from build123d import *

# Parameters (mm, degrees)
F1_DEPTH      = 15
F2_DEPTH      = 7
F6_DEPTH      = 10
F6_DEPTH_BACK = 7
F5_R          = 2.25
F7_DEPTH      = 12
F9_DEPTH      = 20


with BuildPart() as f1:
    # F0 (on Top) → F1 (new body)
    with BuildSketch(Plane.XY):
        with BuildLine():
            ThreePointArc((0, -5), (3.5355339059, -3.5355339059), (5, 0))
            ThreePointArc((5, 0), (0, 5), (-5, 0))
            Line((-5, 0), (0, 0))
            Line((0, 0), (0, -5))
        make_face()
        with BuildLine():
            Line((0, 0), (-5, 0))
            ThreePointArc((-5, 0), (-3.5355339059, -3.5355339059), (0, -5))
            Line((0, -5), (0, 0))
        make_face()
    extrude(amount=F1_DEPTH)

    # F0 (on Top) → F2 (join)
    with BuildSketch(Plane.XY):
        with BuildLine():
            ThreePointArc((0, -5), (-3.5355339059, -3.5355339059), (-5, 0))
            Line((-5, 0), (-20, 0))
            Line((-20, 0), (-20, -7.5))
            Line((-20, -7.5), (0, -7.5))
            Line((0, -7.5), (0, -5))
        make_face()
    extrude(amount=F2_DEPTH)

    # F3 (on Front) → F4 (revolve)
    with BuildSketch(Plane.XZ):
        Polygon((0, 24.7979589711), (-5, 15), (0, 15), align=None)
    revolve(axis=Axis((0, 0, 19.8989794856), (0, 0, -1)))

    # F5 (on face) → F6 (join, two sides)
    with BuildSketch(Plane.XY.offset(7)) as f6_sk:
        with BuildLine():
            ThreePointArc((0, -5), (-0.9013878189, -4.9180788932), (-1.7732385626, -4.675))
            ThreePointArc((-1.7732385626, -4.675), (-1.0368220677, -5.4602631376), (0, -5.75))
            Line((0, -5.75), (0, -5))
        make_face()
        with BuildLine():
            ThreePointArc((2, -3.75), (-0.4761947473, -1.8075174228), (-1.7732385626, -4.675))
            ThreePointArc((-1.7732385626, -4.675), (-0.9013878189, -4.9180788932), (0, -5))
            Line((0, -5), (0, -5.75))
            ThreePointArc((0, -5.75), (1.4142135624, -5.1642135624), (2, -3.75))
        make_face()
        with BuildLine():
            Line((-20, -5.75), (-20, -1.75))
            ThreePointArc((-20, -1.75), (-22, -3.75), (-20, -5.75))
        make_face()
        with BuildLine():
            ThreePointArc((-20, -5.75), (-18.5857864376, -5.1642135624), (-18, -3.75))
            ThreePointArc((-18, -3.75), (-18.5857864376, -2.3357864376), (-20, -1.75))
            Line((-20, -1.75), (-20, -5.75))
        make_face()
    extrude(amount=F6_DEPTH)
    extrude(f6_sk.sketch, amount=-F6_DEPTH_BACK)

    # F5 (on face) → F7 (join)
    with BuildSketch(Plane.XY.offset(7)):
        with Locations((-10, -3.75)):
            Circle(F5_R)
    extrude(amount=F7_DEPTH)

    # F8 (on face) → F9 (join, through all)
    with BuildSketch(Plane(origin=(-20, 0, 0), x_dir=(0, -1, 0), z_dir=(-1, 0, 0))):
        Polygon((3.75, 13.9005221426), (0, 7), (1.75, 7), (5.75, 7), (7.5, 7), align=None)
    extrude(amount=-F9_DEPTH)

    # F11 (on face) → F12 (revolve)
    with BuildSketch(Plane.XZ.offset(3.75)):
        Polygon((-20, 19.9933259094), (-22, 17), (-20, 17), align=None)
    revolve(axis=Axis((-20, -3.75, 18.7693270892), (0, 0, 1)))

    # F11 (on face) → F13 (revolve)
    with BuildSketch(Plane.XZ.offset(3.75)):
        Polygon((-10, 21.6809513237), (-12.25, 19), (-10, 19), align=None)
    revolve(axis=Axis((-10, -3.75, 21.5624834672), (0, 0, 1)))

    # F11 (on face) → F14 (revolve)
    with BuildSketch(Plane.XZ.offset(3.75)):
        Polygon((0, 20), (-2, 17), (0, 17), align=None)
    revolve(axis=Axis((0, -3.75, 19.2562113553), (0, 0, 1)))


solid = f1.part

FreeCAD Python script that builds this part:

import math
import FreeCAD as App
import Part
import Sketcher

V = App.Vector


def add_polygon(sketch, points):
    """Adds a closed chain of lines whose ends are joined by coincident constraints."""
    first, n = sketch.GeometryCount, len(points)
    for a, b in zip(points, points[1:] + points[:1]):
        sketch.addGeometry(Part.LineSegment(App.Vector(*a, 0), App.Vector(*b, 0)), False)
    for i in range(n):
        sketch.addConstraint(Sketcher.Constraint("Coincident", first + i, 2, first + (i + 1) % n, 1))

doc = App.newDocument("Part")
body = doc.addObject("PartDesign::Body", "Body")

sketch1 = body.newObject("Sketcher::SketchObject", "Sketch")
sketch1.AttachmentSupport = (doc.getObject("XY_Plane"), [""])
sketch1.MapMode = "FlatFace"
sketch1.addGeometry(Part.ArcOfCircle(Part.Circle(V(0, 0, 0), V(0, 0, 1), 5), math.radians(-90), math.radians(0)), False)
sketch1.addGeometry(Part.ArcOfCircle(Part.Circle(V(0, 0, 0), V(0, 0, 1), 5), math.radians(0), math.radians(180)), False)
sketch1.addGeometry(Part.ArcOfCircle(Part.Circle(V(0, 0, 0), V(0, 0, 1), 5), math.radians(180), math.radians(270)), False)
sketch1.addConstraint(Sketcher.Constraint("Tangent", 0, 2, 1, 1))
sketch1.addConstraint(Sketcher.Constraint("Tangent", 1, 2, 2, 1))
sketch1.addConstraint(Sketcher.Constraint("Tangent", 2, 2, 0, 1))
sketch1.addConstraint(Sketcher.Constraint("Coincident", 0, 3, -1, 1))
sketch1.addConstraint(Sketcher.Constraint("PointOnObject", 0, 2, -1))
sketch1.addConstraint(Sketcher.Constraint("PointOnObject", 1, 2, -1))
sketch1.addConstraint(Sketcher.Constraint("PointOnObject", 2, 2, -2))
sketch1.addConstraint(Sketcher.Constraint("Radius", 0, 5.0))
pad1 = body.newObject("PartDesign::Pad", "Pad")
pad1.Profile = sketch1
pad1.Length = 15

sketch2 = body.newObject("Sketcher::SketchObject", "Sketch001")
sketch2.AttachmentSupport = (doc.getObject("XY_Plane"), [""])
sketch2.MapMode = "FlatFace"
sketch2.addGeometry(Part.ArcOfCircle(Part.Circle(V(0, 0, 0), V(0, 0, 1), 5), math.radians(180), math.radians(270)), False)
sketch2.addGeometry(Part.LineSegment(V(-5, 0, 0), V(-20, 0, 0)), False)
sketch2.addGeometry(Part.LineSegment(V(-20, 0, 0), V(-20, -7.5, 0)), False)
sketch2.addGeometry(Part.LineSegment(V(-20, -7.5, 0), V(0, -7.5, 0)), False)
sketch2.addGeometry(Part.LineSegment(V(0, -7.5, 0), V(0, -5, 0)), False)
sketch2.addConstraint(Sketcher.Constraint("Coincident", 0, 1, 1, 1))
sketch2.addConstraint(Sketcher.Constraint("Coincident", 1, 2, 2, 1))
sketch2.addConstraint(Sketcher.Constraint("Coincident", 2, 2, 3, 1))
sketch2.addConstraint(Sketcher.Constraint("Coincident", 3, 2, 4, 1))
sketch2.addConstraint(Sketcher.Constraint("Coincident", 4, 2, 0, 2))
sketch2.addConstraint(Sketcher.Constraint("Horizontal", 1))
sketch2.addConstraint(Sketcher.Constraint("Vertical", 2))
sketch2.addConstraint(Sketcher.Constraint("Horizontal", 3))
sketch2.addConstraint(Sketcher.Constraint("Vertical", 4))
sketch2.addConstraint(Sketcher.Constraint("Coincident", 0, 3, -1, 1))
sketch2.addConstraint(Sketcher.Constraint("PointOnObject", 0, 1, -1))
sketch2.addConstraint(Sketcher.Constraint("PointOnObject", 3, 2, -2))
sketch2.addConstraint(Sketcher.Constraint("Radius", 0, 5.0))
sketch2.addConstraint(Sketcher.Constraint("DistanceX", 1, 2, 1, 1, 15.0))
sketch2.addConstraint(Sketcher.Constraint("DistanceY", 2, 2, 2, 1, 7.5))
pad2 = body.newObject("PartDesign::Pad", "Pad001")
pad2.Profile = sketch2
pad2.Length = 7

sketch3 = body.newObject("Sketcher::SketchObject", "Sketch002")
sketch3.AttachmentSupport = (doc.getObject("XZ_Plane"), [""])
sketch3.MapMode = "FlatFace"
add_polygon(sketch3, [(0, 25), (-5, 15), (0, 15)])
sketch3.addConstraint(Sketcher.Constraint("Horizontal", 1))
sketch3.addConstraint(Sketcher.Constraint("Vertical", 2))
sketch3.addConstraint(Sketcher.Constraint("PointOnObject", 1, 2, -2))
sketch3.addConstraint(Sketcher.Constraint("DistanceX", 1, 1, 1, 2, 5.0))
sketch3.addConstraint(Sketcher.Constraint("Distance", 0, 11.0))
sketch3.addConstraint(Sketcher.Constraint("DistanceY", -1, 1, 0, 2, 15.0))
revolution = body.newObject("PartDesign::Revolution", "Revolution")
revolution.Profile = sketch3
revolution.ReferenceAxis = (sketch3, ["V_Axis"])
revolution.Angle = 360

sketch4 = body.newObject("Sketcher::SketchObject", "Sketch003")
sketch4.AttachmentSupport = (doc.getObject("XY_Plane"), [""])
sketch4.MapMode = "FlatFace"
sketch4.AttachmentOffset = App.Placement(V(0, 0, 7), App.Rotation())
sketch4.addGeometry(Part.ArcOfCircle(Part.Circle(V(0, -3.8, 0), V(0, 0, 1), 2), math.radians(-152), math.radians(-90)), False)
sketch4.addGeometry(Part.ArcOfCircle(Part.Circle(V(0, -3.8, 0), V(0, 0, 1), 2), math.radians(-90), math.radians(0)), False)
sketch4.addGeometry(Part.ArcOfCircle(Part.Circle(V(0, -3.8, 0), V(0, 0, 1), 2), math.radians(0), math.radians(208)), False)
sketch4.addGeometry(Part.ArcOfCircle(Part.Circle(V(-20, -3.8, 0), V(0, 0, 1), 2), math.radians(90), math.radians(270)), False)
sketch4.addGeometry(Part.ArcOfCircle(Part.Circle(V(-20, -3.8, 0), V(0, 0, 1), 2), math.radians(-90), math.radians(0)), False)
sketch4.addGeometry(Part.ArcOfCircle(Part.Circle(V(-20, -3.8, 0), V(0, 0, 1), 2), math.radians(0), math.radians(90)), False)
sketch4.addConstraint(Sketcher.Constraint("Tangent", 0, 2, 1, 1))
sketch4.addConstraint(Sketcher.Constraint("Tangent", 1, 2, 2, 1))
sketch4.addConstraint(Sketcher.Constraint("Tangent", 2, 2, 0, 1))
sketch4.addConstraint(Sketcher.Constraint("Tangent", 3, 2, 4, 1))
sketch4.addConstraint(Sketcher.Constraint("Tangent", 4, 2, 5, 1))
sketch4.addConstraint(Sketcher.Constraint("Tangent", 5, 2, 3, 1))
sketch4.addConstraint(Sketcher.Constraint("Equal", 2, 3))
sketch4.addConstraint(Sketcher.Constraint("PointOnObject", 0, 3, -2))
sketch4.addConstraint(Sketcher.Constraint("PointOnObject", 0, 2, -2))
sketch4.addConstraint(Sketcher.Constraint("Horizontal", 2, 3, 3, 3))
sketch4.addConstraint(Sketcher.Constraint("Horizontal", 5, 3, 1, 2))
sketch4.addConstraint(Sketcher.Constraint("Horizontal", 1, 2, 4, 2))
sketch4.addConstraint(Sketcher.Constraint("Vertical", 5, 3, 3, 2))
sketch4.addConstraint(Sketcher.Constraint("Vertical", 3, 2, 5, 2))
sketch4.addConstraint(Sketcher.Constraint("Radius", 0, 2.0))
sketch4.addConstraint(Sketcher.Constraint("DistanceX", 3, 3, -1, 1, 20.0))
sketch4.addConstraint(Sketcher.Constraint("DistanceY", 0, 3, -1, 1, 3.75))
sketch4.addConstraint(Sketcher.Constraint("DistanceY", 2, 2, -1, 1, 4.675))
pad3 = body.newObject("PartDesign::Pad", "Pad002")
pad3.Profile = sketch4
pad3.Type = "TwoLengths"
pad3.Length = 10
pad3.Length2 = 7

sketch5 = body.newObject("Sketcher::SketchObject", "Sketch004")
sketch5.AttachmentSupport = (doc.getObject("XY_Plane"), [""])
sketch5.MapMode = "FlatFace"
sketch5.AttachmentOffset = App.Placement(V(0, 0, 7), App.Rotation())
sketch5.addGeometry(Part.Circle(V(-10, -3.8, 0), V(0, 0, 1), 2.2), False)
sketch5.addConstraint(Sketcher.Constraint("Diameter", 0, 4.5))
sketch5.addConstraint(Sketcher.Constraint("DistanceX", 0, 3, -1, 1, 10.0))
sketch5.addConstraint(Sketcher.Constraint("DistanceY", 0, 3, -1, 1, 3.75))
pad4 = body.newObject("PartDesign::Pad", "Pad003")
pad4.Profile = sketch5
pad4.Length = 12

sketch6 = body.newObject("Sketcher::SketchObject", "Sketch005")
sketch6.AttachmentSupport = (doc.getObject("YZ_Plane"), [""])
sketch6.MapMode = "FlatFace"
sketch6.AttachmentOffset = App.Placement(V(0, 0, -20), App.Rotation())
add_polygon(sketch6, [(-4, 14), (0, 7), (-8, 7)])
sketch6.addConstraint(Sketcher.Constraint("Horizontal", 1))
sketch6.addConstraint(Sketcher.Constraint("PointOnObject", 0, 2, -2))
sketch6.addConstraint(Sketcher.Constraint("Equal", 0, 2))
sketch6.addConstraint(Sketcher.Constraint("DistanceX", 1, 2, 1, 1, 7.5))
sketch6.addConstraint(Sketcher.Constraint("DistanceY", -1, 1, 0, 2, 7.0))
sketch6.addConstraint(Sketcher.Constraint("Distance", 0, 7.853643))
pad5 = body.newObject("PartDesign::Pad", "Pad004")
pad5.Profile = sketch6
pad5.Length = 20

sketch7 = body.newObject("Sketcher::SketchObject", "Sketch006")
sketch7.AttachmentSupport = (doc.getObject("XZ_Plane"), [""])
sketch7.MapMode = "FlatFace"
sketch7.AttachmentOffset = App.Placement(V(0, 0, 3.75), App.Rotation())
add_polygon(sketch7, [(-20, 20), (-22, 17), (-20, 17)])
sketch7.addGeometry(Part.LineSegment(V(-20, 17, 0), V(-20, 20, 0)), True)
sketch7.addConstraint(Sketcher.Constraint("Horizontal", 1))
sketch7.addConstraint(Sketcher.Constraint("Vertical", 2))
sketch7.addConstraint(Sketcher.Constraint("Vertical", 3))
sketch7.addConstraint(Sketcher.Constraint("Coincident", 3, 1, 1, 2))
sketch7.addConstraint(Sketcher.Constraint("Equal", 2, 3))
sketch7.addConstraint(Sketcher.Constraint("DistanceX", 1, 1, 1, 2, 2.0))
sketch7.addConstraint(Sketcher.Constraint("DistanceX", 0, 2, -1, 1, 22.0))
sketch7.addConstraint(Sketcher.Constraint("DistanceY", -1, 1, 0, 2, 17.0))
sketch7.addConstraint(Sketcher.Constraint("Distance", 0, 3.6))
revolution2 = body.newObject("PartDesign::Revolution", "Revolution001")
revolution2.Profile = sketch7
revolution2.ReferenceAxis = (sketch7, ["Axis0"])
revolution2.Angle = 360

sketch8 = body.newObject("Sketcher::SketchObject", "Sketch007")
sketch8.AttachmentSupport = (doc.getObject("XZ_Plane"), [""])
sketch8.MapMode = "FlatFace"
sketch8.AttachmentOffset = App.Placement(V(0, 0, 3.75), App.Rotation())
add_polygon(sketch8, [(-10, 21.7), (-12.2, 19), (-10, 19)])
sketch8.addGeometry(Part.LineSegment(V(-10, 19, 0), V(-10, 21.7, 0)), True)
sketch8.addConstraint(Sketcher.Constraint("Horizontal", 1))
sketch8.addConstraint(Sketcher.Constraint("Vertical", 2))
sketch8.addConstraint(Sketcher.Constraint("Vertical", 3))
sketch8.addConstraint(Sketcher.Constraint("Coincident", 3, 1, 1, 2))
sketch8.addConstraint(Sketcher.Constraint("Equal", 2, 3))
sketch8.addConstraint(Sketcher.Constraint("DistanceY", -1, 1, 0, 2, 19.0))
sketch8.addConstraint(Sketcher.Constraint("DistanceX", 1, 2, -1, 1, 10.0))
sketch8.addConstraint(Sketcher.Constraint("Distance", 0, 3.5))
sketch8.addConstraint(Sketcher.Constraint("DistanceX", 1, 1, 1, 2, 2.25))
revolution3 = body.newObject("PartDesign::Revolution", "Revolution002")
revolution3.Profile = sketch8
revolution3.ReferenceAxis = (sketch8, ["Axis0"])
revolution3.Angle = 360

sketch9 = body.newObject("Sketcher::SketchObject", "Sketch008")
sketch9.AttachmentSupport = (doc.getObject("XZ_Plane"), [""])
sketch9.MapMode = "FlatFace"
sketch9.AttachmentOffset = App.Placement(V(0, 0, 3.75), App.Rotation())
add_polygon(sketch9, [(0, 20), (-2, 17), (0, 17)])
sketch9.addConstraint(Sketcher.Constraint("Horizontal", 1))
sketch9.addConstraint(Sketcher.Constraint("Vertical", 2))
sketch9.addConstraint(Sketcher.Constraint("PointOnObject", 1, 2, -2))
sketch9.addConstraint(Sketcher.Constraint("DistanceX", 1, 1, 1, 2, 2.0))
sketch9.addConstraint(Sketcher.Constraint("DistanceY", 2, 1, 2, 2, 3.0))
sketch9.addConstraint(Sketcher.Constraint("DistanceY", -1, 1, 0, 2, 17.0))
revolution4 = body.newObject("PartDesign::Revolution", "Revolution003")
revolution4.Profile = sketch9
revolution4.ReferenceAxis = (sketch9, ["V_Axis"])
revolution4.Angle = 360

doc.recompute()
